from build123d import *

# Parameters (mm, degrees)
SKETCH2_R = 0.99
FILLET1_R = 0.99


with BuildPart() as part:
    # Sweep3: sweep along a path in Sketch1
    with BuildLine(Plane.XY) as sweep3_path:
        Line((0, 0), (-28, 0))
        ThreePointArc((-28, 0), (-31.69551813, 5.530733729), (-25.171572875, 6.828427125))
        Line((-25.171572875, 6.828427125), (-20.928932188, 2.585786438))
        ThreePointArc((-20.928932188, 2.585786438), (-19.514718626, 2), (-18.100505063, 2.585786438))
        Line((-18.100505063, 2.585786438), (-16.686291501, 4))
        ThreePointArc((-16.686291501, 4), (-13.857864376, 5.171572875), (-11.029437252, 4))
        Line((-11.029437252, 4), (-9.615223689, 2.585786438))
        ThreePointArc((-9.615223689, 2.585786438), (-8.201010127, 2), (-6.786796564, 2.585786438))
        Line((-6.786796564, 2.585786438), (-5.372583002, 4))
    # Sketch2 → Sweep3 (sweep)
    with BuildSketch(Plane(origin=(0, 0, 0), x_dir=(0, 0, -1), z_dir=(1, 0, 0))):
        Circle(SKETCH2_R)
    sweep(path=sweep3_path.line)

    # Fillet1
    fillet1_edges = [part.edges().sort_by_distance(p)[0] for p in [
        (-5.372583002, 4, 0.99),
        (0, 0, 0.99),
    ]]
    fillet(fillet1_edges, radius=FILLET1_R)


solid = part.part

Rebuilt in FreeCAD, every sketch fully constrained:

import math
import FreeCAD as App
import Part
import Sketcher
Q = App.Units.Quantity


def edges_at(feature, points):
    """Names of the edges that pass closest to the given points."""
    edges = feature.Shape.Edges
    near = lambda p: min(range(len(edges)), key=lambda i: edges[i].distToShape(Part.Vertex(*p))[0])
    return sorted({f"Edge{near(p) + 1}" for p in points})

doc = App.newDocument("Part")
body = doc.addObject("PartDesign::Body", "Body")

# Sketch on YZ plane
sketch1 = doc.addObject("Sketcher::SketchObject", "Sketch")
body.addObject(sketch1)
sketch1.AttachmentSupport = (doc.YZ_Plane, [""])
sketch1.MapMode = "FlatFace"
sketch1.addGeometry(Part.Circle(App.Vector(0, 0, 0), App.Vector(0, 0, 1), 1), False)
sketch1.addConstraint(Sketcher.Constraint("Coincident", 0, 3, -1, 1))
sketch1.addConstraint(Sketcher.Constraint("Diameter", 0, Q("1.98 mm")))

# Sketch on XY plane
sketch2 = doc.addObject("Sketcher::SketchObject", "Sketch001")
body.addObject(sketch2)
sketch2.AttachmentSupport = (doc.XY_Plane, [""])
sketch2.MapMode = "FlatFace"
sketch2.addGeometry(Part.LineSegment(App.Vector(0, 0, 0), App.Vector(-28, 0, 0)), False)
sketch2.addGeometry(Part.ArcOfCircle(Part.Circle(App.Vector(-28, 4, 0), App.Vector(0, 0, 1), 4), math.radians(45), math.radians(270)), False)
sketch2.addGeometry(Part.LineSegment(App.Vector(-25.2, 6.8, 0), App.Vector(-20.9, 2.6, 0)), False)
sketch2.addGeometry(Part.ArcOfCircle(Part.Circle(App.Vector(-19.5, 4, 0), App.Vector(0, 0, 1), 2), math.radians(-135), math.radians(-45)), False)
sketch2.addGeometry(Part.LineSegment(App.Vector(-18.1, 2.6, 0), App.Vector(-16.7, 4, 0)), False)
sketch2.addGeometry(Part.ArcOfCircle(Part.Circle(App.Vector(-13.9, 1.2, 0), App.Vector(0, 0, 1), 4), math.radians(45), math.radians(135)), False)
sketch2.addGeometry(Part.LineSegment(App.Vector(-11, 4, 0), App.Vector(-9.6, 2.6, 0)), False)
sketch2.addGeometry(Part.ArcOfCircle(Part.Circle(App.Vector(-8.2, 4, 0), App.Vector(0, 0, 1), 2), math.radians(-135), math.radians(-45)), False)
sketch2.addGeometry(Part.LineSegment(App.Vector(-6.8, 2.6, 0), App.Vector(-5.4, 4, 0)), False)
sketch2.addConstraint(Sketcher.Constraint("Tangent", 0, 2, 1, 2))
sketch2.addConstraint(Sketcher.Constraint("Tangent", 1, 1, 2, 1))
sketch2.addConstraint(Sketcher.Constraint("Tangent", 2, 2, 3, 1))
sketch2.addConstraint(Sketcher.Constraint("Tangent", 3, 2, 4, 1))
sketch2.addConstraint(Sketcher.Constraint("Tangent", 4, 2, 5, 2))
sketch2.addConstraint(Sketcher.Constraint("Tangent", 5, 1, 6, 1))
sketch2.addConstraint(Sketcher.Constraint("Tangent", 6, 2, 7, 1))
sketch2.addConstraint(Sketcher.Constraint("Tangent", 7, 2, 8, 1))
sketch2.addConstraint(Sketcher.Constraint("Horizontal", 0))
sketch2.addConstraint(Sketcher.Constraint("Coincident", 0, 1, -1, 1))
sketch2.addConstraint(Sketcher.Constraint("Equal", 1, 5))
sketch2.addConstraint(Sketcher.Constraint("Equal", 3, 7))
sketch2.addConstraint(Sketcher.Constraint("Perpendicular", 2, 4))
sketch2.addConstraint(Sketcher.Constraint("Perpendicular", 4, 6))
sketch2.addConstraint(Sketcher.Constraint("Perpendicular", 6, 8))
sketch2.addConstraint(Sketcher.Constraint("Horizontal", 1, 3, 3, 3))
sketch2.addConstraint(Sketcher.Constraint("Horizontal", 3, 3, 7, 3))
sketch2.addConstraint(Sketcher.Constraint("Horizontal", 2, 2, 3, 2))
sketch2.addConstraint(Sketcher.Constraint("Horizontal", 7, 3, 4, 2))
sketch2.addConstraint(Sketcher.Constraint("Horizontal", 5, 1, 8, 2))
sketch2.addConstraint(Sketcher.Constraint("Radius", 1, Q("4 mm")))
sketch2.addConstraint(Sketcher.Constraint("Radius", 3, Q("2 mm")))
sketch2.addConstraint(Sketcher.Constraint("DistanceX", 0, 2, 0, 1, Q("28 mm")))
doc.recompute()

additivepipe = doc.addObject("PartDesign::AdditivePipe", "AdditivePipe")
body.addObject(additivepipe)
additivepipe.Profile = sketch1
additivepipe.Spine = (sketch2, ["Edge1", "Edge2", "Edge3", "Edge4", "Edge5", "Edge6", "Edge7", "Edge8", "Edge9"])
doc.recompute()

fillet = doc.addObject("PartDesign::Fillet", "Fillet")
body.addObject(fillet)
fillet.Base = (additivepipe, edges_at(additivepipe, [(-5.373, 4, 0.99), (0, 0, 0.99)]))
fillet.Radius = 0.99

doc.recompute()
